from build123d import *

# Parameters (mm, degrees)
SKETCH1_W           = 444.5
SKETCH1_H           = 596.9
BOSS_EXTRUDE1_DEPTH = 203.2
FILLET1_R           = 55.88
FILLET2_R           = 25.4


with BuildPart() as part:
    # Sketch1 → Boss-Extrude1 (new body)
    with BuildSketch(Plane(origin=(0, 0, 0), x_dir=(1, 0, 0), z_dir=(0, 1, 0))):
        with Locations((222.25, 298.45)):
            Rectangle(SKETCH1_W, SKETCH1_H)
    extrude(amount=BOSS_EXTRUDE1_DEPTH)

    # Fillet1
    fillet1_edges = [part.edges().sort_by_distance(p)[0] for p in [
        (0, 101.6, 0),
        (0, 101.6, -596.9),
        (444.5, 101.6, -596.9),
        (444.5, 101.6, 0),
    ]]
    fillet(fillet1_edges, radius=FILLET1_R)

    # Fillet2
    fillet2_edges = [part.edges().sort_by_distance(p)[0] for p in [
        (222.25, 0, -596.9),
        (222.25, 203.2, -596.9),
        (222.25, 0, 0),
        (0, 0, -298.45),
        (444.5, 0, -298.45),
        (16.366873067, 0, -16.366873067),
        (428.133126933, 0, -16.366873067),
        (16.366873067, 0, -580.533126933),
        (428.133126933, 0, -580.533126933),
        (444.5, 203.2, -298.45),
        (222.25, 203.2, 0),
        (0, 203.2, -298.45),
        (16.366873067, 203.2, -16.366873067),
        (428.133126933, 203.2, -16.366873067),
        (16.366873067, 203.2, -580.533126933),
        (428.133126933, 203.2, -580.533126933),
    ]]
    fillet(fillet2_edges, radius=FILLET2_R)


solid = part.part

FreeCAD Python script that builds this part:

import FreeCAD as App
import Part
import Sketcher

V = App.Vector
Q = App.Units.Quantity


def edges_at(feature, points):
    """Names of the edges that pass closest to the given points."""
    edges = feature.Shape.Edges
    near = lambda p: min(range(len(edges)), key=lambda i: edges[i].distToShape(Part.Vertex(*p))[0])
    return sorted({f"Edge{near(p) + 1}" for p in points})

doc = App.newDocument("Part")
body = doc.addObject("PartDesign::Body", "Body")

# Sketch on XZ plane
sketch1 = body.newObject("Sketcher::SketchObject", "Sketch")
sketch1.AttachmentSupport = (doc.getObject("XZ_Plane"), [""])
sketch1.MapMode = "FlatFace"
sketch1.addGeometry(Part.LineSegment(V(0, -597, 0), V(0, 0, 0)), False)
sketch1.addGeometry(Part.LineSegment(V(0, 0, 0), V(444, 0, 0)), False)
sketch1.addGeometry(Part.LineSegment(V(444, 0, 0), V(444, -597, 0)), False)
sketch1.addGeometry(Part.LineSegment(V(444, -597, 0), V(0, -597, 0)), False)
sketch1.addConstraint(Sketcher.Constraint("Coincident", 0, 2, 1, 1))
sketch1.addConstraint(Sketcher.Constraint("Coincident", 1, 2, 2, 1))
sketch1.addConstraint(Sketcher.Constraint("Coincident", 2, 2, 3, 1))
sketch1.addConstraint(Sketcher.Constraint("Coincident", 3, 2, 0, 1))
sketch1.addConstraint(Sketcher.Constraint("Vertical", 0))
sketch1.addConstraint(Sketcher.Constraint("Horizontal", 1))
sketch1.addConstraint(Sketcher.Constraint("Vertical", 2))
sketch1.addConstraint(Sketcher.Constraint("Horizontal", 3))
sketch1.addConstraint(Sketcher.Constraint("Coincident", 0, 2, -1, 1))
sketch1.addConstraint(Sketcher.Constraint("DistanceX", 1, 1, 1, 2, Q("17.5 in")))
sketch1.addConstraint(Sketcher.Constraint("DistanceY", 0, 1, 0, 2, Q("23.5 in")))
pad1 = body.newObject("PartDesign::Pad", "Pad")
pad1.Profile = sketch1
pad1.Length = Q("8 in")
pad1.Reversed = True
doc.recompute()

fillet = body.newObject("PartDesign::Fillet", "Fillet")
fillet.Base = (pad1, edges_at(pad1, [
    (0, 101.6, 0),
    (0, 101.6, -596.9),
    (444.5, 101.6, -596.9),
    (444.5, 101.6, 0),
]))
fillet.Radius = Q("2.2 in")
doc.recompute()

fillet2 = body.newObject("PartDesign::Fillet", "Fillet001")
fillet2.Base = (fillet, edges_at(fillet, [
    (222.25, 0, -596.9),
    (222.25, 203.2, -596.9),
    (222.25, 0, 0),
    (0, 0, -298.45),
    (444.5, 0, -298.45),
    (16.367, 0, -16.367),
    (428.133, 0, -16.367),
    (16.367, 0, -580.533),
    (428.133, 0, -580.533),
    (444.5, 203.2, -298.45),
    (222.25, 203.2, 0),
    (0, 203.2, -298.45),
    (16.367, 203.2, -16.367),
    (428.133, 203.2, -16.367),
    (16.367, 203.2, -580.533),
    (428.133, 203.2, -580.533),
]))
fillet2.Radius = Q("1 in")

doc.recompute()
